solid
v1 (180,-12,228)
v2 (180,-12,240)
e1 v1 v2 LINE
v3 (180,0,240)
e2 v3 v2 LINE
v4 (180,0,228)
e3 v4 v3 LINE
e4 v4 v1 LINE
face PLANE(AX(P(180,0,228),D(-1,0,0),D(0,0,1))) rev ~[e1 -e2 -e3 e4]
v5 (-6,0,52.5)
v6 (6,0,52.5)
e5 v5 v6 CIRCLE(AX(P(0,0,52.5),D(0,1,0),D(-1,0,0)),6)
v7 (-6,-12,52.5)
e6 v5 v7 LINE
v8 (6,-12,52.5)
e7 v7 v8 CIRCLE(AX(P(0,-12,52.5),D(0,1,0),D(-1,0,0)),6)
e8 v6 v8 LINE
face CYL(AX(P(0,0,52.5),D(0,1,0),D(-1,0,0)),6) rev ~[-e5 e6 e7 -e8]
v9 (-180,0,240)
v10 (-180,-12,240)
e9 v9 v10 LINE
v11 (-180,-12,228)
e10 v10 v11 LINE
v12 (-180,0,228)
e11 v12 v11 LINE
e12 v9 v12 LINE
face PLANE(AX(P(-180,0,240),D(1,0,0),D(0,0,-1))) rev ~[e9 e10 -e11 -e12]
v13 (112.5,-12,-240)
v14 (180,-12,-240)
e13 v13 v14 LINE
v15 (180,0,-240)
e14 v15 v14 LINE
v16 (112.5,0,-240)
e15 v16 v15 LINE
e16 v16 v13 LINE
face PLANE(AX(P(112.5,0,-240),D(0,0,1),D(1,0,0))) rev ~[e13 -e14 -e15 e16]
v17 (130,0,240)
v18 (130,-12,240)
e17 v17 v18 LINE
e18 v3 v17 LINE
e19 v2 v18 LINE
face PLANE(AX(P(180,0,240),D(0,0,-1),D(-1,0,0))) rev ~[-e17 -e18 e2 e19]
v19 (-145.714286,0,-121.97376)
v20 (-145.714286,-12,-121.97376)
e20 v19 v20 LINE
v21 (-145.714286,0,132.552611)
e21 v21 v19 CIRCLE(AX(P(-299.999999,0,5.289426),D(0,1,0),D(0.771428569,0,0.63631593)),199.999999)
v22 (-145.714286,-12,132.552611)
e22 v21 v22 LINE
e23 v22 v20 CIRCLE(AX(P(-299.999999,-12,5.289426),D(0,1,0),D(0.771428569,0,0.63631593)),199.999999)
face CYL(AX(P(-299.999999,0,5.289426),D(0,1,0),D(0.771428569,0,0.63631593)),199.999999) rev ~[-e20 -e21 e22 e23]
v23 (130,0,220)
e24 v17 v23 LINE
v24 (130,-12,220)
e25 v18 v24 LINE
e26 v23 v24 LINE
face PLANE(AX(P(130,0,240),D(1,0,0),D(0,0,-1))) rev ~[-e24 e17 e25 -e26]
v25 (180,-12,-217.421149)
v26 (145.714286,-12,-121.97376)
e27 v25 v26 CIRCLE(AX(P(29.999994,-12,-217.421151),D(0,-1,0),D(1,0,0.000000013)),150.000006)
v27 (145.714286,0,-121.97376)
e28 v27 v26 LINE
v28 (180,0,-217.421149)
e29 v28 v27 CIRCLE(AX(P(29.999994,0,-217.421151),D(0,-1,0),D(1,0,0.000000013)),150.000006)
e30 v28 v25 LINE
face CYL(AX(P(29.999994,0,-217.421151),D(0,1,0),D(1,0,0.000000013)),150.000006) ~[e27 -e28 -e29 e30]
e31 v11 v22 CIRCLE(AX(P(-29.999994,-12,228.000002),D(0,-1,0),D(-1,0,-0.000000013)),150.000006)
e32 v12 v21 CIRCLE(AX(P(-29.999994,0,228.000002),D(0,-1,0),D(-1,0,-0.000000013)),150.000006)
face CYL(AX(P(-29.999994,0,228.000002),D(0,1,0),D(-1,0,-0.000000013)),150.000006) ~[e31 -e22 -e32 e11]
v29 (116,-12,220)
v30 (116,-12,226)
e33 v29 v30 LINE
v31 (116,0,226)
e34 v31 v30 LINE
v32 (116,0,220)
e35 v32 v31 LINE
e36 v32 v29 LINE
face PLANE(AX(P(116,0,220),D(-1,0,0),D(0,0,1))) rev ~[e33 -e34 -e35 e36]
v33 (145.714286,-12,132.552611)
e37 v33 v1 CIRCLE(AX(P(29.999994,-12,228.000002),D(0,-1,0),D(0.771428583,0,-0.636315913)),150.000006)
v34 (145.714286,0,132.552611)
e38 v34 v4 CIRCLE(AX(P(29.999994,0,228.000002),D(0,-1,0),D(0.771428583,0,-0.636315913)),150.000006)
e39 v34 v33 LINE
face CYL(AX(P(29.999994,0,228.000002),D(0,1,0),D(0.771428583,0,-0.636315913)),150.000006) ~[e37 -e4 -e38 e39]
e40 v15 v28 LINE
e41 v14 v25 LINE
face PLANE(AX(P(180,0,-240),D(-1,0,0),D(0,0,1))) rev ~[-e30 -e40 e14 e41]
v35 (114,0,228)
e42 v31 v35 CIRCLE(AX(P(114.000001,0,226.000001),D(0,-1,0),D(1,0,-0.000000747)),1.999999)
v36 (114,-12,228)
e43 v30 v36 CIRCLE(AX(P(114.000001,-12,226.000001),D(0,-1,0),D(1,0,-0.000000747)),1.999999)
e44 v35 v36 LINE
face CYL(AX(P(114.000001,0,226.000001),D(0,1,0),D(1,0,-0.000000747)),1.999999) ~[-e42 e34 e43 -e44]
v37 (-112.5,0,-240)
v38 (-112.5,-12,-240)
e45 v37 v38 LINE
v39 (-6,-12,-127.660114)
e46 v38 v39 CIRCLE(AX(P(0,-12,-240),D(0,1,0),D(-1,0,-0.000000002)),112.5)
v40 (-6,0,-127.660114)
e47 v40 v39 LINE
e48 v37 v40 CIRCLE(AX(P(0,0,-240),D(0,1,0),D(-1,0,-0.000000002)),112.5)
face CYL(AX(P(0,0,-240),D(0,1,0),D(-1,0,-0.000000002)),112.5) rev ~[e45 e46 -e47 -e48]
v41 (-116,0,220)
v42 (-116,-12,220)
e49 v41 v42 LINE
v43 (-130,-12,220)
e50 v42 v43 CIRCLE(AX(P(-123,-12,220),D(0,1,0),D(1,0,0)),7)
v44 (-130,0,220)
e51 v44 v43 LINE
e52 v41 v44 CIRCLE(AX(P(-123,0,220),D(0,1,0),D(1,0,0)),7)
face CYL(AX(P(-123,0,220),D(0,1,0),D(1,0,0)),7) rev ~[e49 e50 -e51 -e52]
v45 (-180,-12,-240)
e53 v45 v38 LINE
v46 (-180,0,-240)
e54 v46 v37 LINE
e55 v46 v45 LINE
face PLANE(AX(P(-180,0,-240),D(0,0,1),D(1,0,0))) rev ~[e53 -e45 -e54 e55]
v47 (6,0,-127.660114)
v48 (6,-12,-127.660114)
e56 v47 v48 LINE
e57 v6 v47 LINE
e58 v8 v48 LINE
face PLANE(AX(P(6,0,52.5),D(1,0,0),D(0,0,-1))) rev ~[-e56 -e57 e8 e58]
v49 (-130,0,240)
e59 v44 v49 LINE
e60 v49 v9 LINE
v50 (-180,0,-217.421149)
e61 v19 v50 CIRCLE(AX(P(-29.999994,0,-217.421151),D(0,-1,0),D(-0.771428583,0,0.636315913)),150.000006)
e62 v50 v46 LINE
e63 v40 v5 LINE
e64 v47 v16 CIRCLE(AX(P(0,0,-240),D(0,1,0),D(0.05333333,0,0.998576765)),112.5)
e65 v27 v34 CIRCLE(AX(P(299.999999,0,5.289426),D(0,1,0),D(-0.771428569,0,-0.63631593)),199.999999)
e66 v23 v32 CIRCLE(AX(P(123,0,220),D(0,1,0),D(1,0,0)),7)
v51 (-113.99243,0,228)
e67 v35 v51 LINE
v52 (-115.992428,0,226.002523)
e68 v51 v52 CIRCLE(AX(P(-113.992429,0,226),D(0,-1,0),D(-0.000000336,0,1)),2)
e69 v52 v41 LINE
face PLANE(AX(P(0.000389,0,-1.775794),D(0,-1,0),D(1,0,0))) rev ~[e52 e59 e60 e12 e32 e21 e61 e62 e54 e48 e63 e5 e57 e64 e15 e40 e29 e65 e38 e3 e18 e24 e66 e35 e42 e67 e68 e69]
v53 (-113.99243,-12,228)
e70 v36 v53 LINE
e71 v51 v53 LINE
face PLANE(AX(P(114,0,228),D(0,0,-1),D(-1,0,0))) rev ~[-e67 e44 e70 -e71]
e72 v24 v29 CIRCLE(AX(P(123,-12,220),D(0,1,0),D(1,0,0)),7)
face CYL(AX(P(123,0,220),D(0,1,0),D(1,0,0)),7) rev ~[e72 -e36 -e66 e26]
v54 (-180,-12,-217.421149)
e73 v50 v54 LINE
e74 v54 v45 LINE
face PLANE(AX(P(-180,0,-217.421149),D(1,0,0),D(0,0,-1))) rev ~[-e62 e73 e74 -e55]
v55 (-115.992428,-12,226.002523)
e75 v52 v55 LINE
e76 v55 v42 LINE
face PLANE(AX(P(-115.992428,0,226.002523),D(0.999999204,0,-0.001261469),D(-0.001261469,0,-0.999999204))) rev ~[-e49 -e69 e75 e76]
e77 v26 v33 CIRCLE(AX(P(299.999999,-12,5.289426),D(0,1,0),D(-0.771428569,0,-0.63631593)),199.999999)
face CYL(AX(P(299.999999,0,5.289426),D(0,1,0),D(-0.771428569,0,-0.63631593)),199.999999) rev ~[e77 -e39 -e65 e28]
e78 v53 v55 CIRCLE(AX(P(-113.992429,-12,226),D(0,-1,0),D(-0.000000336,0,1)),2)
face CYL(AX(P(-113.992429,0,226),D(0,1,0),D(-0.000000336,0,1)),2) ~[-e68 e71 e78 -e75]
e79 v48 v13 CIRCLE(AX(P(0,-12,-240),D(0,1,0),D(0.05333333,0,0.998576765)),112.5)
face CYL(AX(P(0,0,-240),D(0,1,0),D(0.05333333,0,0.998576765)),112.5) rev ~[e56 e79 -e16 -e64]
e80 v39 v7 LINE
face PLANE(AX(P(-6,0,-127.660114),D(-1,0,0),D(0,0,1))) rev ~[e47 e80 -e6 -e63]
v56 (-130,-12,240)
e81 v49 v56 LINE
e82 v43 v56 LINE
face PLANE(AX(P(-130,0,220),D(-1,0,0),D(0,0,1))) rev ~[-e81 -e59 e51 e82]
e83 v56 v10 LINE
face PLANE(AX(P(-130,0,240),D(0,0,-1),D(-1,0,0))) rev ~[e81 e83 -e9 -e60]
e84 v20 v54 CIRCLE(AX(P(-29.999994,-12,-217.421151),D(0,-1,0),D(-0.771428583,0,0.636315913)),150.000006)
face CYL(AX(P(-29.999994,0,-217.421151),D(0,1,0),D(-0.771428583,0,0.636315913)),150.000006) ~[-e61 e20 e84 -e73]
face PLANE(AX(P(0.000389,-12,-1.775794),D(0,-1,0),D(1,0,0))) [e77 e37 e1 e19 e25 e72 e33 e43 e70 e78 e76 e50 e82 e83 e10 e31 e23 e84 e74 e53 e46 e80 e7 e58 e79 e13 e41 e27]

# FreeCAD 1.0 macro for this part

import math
import FreeCAD as App
import Part
import Sketcher

doc = App.newDocument("Part")
body = doc.addObject("PartDesign::Body", "Body")

sketch1 = body.newObject("Sketcher::SketchObject", "Sketch")
sketch1.AttachmentSupport = (doc.getObject("XZ_Plane"), [""])
sketch1.MapMode = "FlatFace"
sketch1.addGeometry(Part.LineSegment(App.Vector(-180, -217.421149, 0), App.Vector(-180, -240, 0)), False)
sketch1.addGeometry(Part.LineSegment(App.Vector(-180, -240, 0), App.Vector(-112.5, -240, 0)), False)
sketch1.addGeometry(Part.ArcOfCircle(Part.Circle(App.Vector(0, -240, 0), App.Vector(0, 0, 1), 112.5), math.radians(93.057225), math.radians(180)), False)
sketch1.addGeometry(Part.LineSegment(App.Vector(-6, -127.660114, 0), App.Vector(-6, 52.5, 0)), False)
sketch1.addGeometry(Part.ArcOfCircle(Part.Circle(App.Vector(0, 52.5, 0), App.Vector(0, 0, 1), 6), math.radians(0), math.radians(180)), False)
sketch1.addGeometry(Part.LineSegment(App.Vector(6, 52.5, 0), App.Vector(6, -127.660114, 0)), False)
sketch1.addGeometry(Part.ArcOfCircle(Part.Circle(App.Vector(0, -240, 0), App.Vector(0, 0, 1), 112.5), math.radians(0), math.radians(86.942775)), False)
sketch1.addGeometry(Part.LineSegment(App.Vector(112.5, -240, 0), App.Vector(180, -240, 0)), False)
sketch1.addGeometry(Part.LineSegment(App.Vector(180, -240, 0), App.Vector(180, -217.421149, 0)), False)
sketch1.addGeometry(Part.ArcOfCircle(Part.Circle(App.Vector(29.999994, -217.421151, 0), App.Vector(0, 0, 1), 150.000006), math.radians(0.000001), math.radians(39.517652)), False)
sketch1.addGeometry(Part.ArcOfCircle(Part.Circle(App.Vector(299.999999, 5.289426, 0), App.Vector(0, 0, 1), 199.999999), math.radians(140.482347), math.radians(219.517653)), False)
sketch1.addGeometry(Part.ArcOfCircle(Part.Circle(App.Vector(29.999994, 228.000002, 0), App.Vector(0, 0, 1), 150.000006), math.radians(-39.517652), math.radians(-0.000001)), False)
sketch1.addGeometry(Part.LineSegment(App.Vector(180, 228, 0), App.Vector(180, 240, 0)), False)
sketch1.addGeometry(Part.LineSegment(App.Vector(180, 240, 0), App.Vector(130, 240, 0)), False)
sketch1.addGeometry(Part.LineSegment(App.Vector(130, 240, 0), App.Vector(130, 220, 0)), False)
sketch1.addGeometry(Part.ArcOfCircle(Part.Circle(App.Vector(123, 220, 0), App.Vector(0, 0, 1), 7), math.radians(180), math.radians(360)), False)
sketch1.addGeometry(Part.LineSegment(App.Vector(116, 220, 0), App.Vector(116, 226, 0)), False)
sketch1.addGeometry(Part.ArcOfCircle(Part.Circle(App.Vector(114.000001, 226.000001, 0), App.Vector(0, 0, 1), 1.999999), math.radians(-0.000043), math.radians(90.000043)), False)
sketch1.addGeometry(Part.LineSegment(App.Vector(114, 228, 0), App.Vector(-113.99243, 228, 0)), False)
sketch1.addGeometry(Part.ArcOfCircle(Part.Circle(App.Vector(-113.992429, 226, 0), App.Vector(0, 0, 1), 2), math.radians(90.000019), math.radians(179.927714)), False)
sketch1.addGeometry(Part.LineSegment(App.Vector(-115.992428, 226.002523, 0), App.Vector(-116, 220, 0)), False)
sketch1.addGeometry(Part.ArcOfCircle(Part.Circle(App.Vector(-123, 220, 0), App.Vector(0, 0, 1), 7), math.radians(180), math.radians(360)), False)
sketch1.addGeometry(Part.LineSegment(App.Vector(-130, 220, 0), App.Vector(-130, 240, 0)), False)
sketch1.addGeometry(Part.LineSegment(App.Vector(-130, 240, 0), App.Vector(-180, 240, 0)), False)
sketch1.addGeometry(Part.LineSegment(App.Vector(-180, 240, 0), App.Vector(-180, 228, 0)), False)
sketch1.addGeometry(Part.ArcOfCircle(Part.Circle(App.Vector(-29.999994, 228.000002, 0), App.Vector(0, 0, 1), 150.000006), math.radians(-179.999999), math.radians(-140.482348)), False)
sketch1.addGeometry(Part.ArcOfCircle(Part.Circle(App.Vector(-299.999999, 5.289426, 0), App.Vector(0, 0, 1), 199.999999), math.radians(-39.517653), math.radians(39.517653)), False)
sketch1.addGeometry(Part.ArcOfCircle(Part.Circle(App.Vector(-29.999994, -217.421151, 0), App.Vector(0, 0, 1), 150.000006), math.radians(140.482348), math.radians(179.999999)), False)
sketch1.addConstraint(Sketcher.Constraint("Coincident", 0, 2, 1, 1))
sketch1.addConstraint(Sketcher.Constraint("Coincident", 1, 2, 2, 2))
sketch1.addConstraint(Sketcher.Constraint("Coincident", 2, 1, 3, 1))
sketch1.addConstraint(Sketcher.Constraint("Tangent", 3, 2, 4, 2))
sketch1.addConstraint(Sketcher.Constraint("Tangent", 4, 1, 5, 1))
sketch1.addConstraint(Sketcher.Constraint("Coincident", 5, 2, 6, 2))
sketch1.addConstraint(Sketcher.Constraint("Coincident", 6, 1, 7, 1))
sketch1.addConstraint(Sketcher.Constraint("Coincident", 7, 2, 8, 1))
sketch1.addConstraint(Sketcher.Constraint("Tangent", 8, 2, 9, 1))
sketch1.addConstraint(Sketcher.Constraint("Tangent", 9, 2, 10, 2))
sketch1.addConstraint(Sketcher.Constraint("Tangent", 10, 1, 11, 1))
sketch1.addConstraint(Sketcher.Constraint("Tangent", 11, 2, 12, 1))
sketch1.addConstraint(Sketcher.Constraint("Coincident", 12, 2, 13, 1))
sketch1.addConstraint(Sketcher.Constraint("Coincident", 13, 2, 14, 1))
sketch1.addConstraint(Sketcher.Constraint("Tangent", 14, 2, 15, 2))
sketch1.addConstraint(Sketcher.Constraint("Tangent", 15, 1, 16, 1))
sketch1.addConstraint(Sketcher.Constraint("Tangent", 16, 2, 17, 1))
sketch1.addConstraint(Sketcher.Constraint("Tangent", 17, 2, 18, 1))
sketch1.addConstraint(Sketcher.Constraint("Tangent", 18, 2, 19, 1))
sketch1.addConstraint(Sketcher.Constraint("Tangent", 19, 2, 20, 1))
sketch1.addConstraint(Sketcher.Constraint("Coincident", 20, 2, 21, 2))
sketch1.addConstraint(Sketcher.Constraint("Tangent", 21, 1, 22, 1))
sketch1.addConstraint(Sketcher.Constraint("Coincident", 22, 2, 23, 1))
sketch1.addConstraint(Sketcher.Constraint("Coincident", 23, 2, 24, 1))
sketch1.addConstraint(Sketcher.Constraint("Tangent", 24, 2, 25, 1))
sketch1.addConstraint(Sketcher.Constraint("Tangent", 25, 2, 26, 2))
sketch1.addConstraint(Sketcher.Constraint("Tangent", 26, 1, 27, 1))
sketch1.addConstraint(Sketcher.Constraint("Tangent", 27, 2, 0, 1))
sketch1.addConstraint(Sketcher.Constraint("Vertical", 0))
sketch1.addConstraint(Sketcher.Constraint("Horizontal", 1))
sketch1.addConstraint(Sketcher.Constraint("Vertical", 3))
sketch1.addConstraint(Sketcher.Constraint("Vertical", 5))
sketch1.addConstraint(Sketcher.Constraint("Horizontal", 7))
sketch1.addConstraint(Sketcher.Constraint("Vertical", 8))
sketch1.addConstraint(Sketcher.Constraint("Vertical", 12))
sketch1.addConstraint(Sketcher.Constraint("Horizontal", 13))
sketch1.addConstraint(Sketcher.Constraint("Vertical", 14))
sketch1.addConstraint(Sketcher.Constraint("Vertical", 16))
sketch1.addConstraint(Sketcher.Constraint("Horizontal", 18))
sketch1.addConstraint(Sketcher.Constraint("Vertical", 22))
sketch1.addConstraint(Sketcher.Constraint("Horizontal", 23))
sketch1.addConstraint(Sketcher.Constraint("Vertical", 24))
sketch1.addConstraint(Sketcher.Constraint("Coincident", 6, 3, 2, 3))
sketch1.addConstraint(Sketcher.Constraint("Equal", 2, 6))
sketch1.addConstraint(Sketcher.Constraint("Equal", 9, 11))
sketch1.addConstraint(Sketcher.Constraint("Equal", 17, 19))
sketch1.addConstraint(Sketcher.Constraint("Equal", 15, 21))
sketch1.addConstraint(Sketcher.Constraint("Equal", 11, 25))
sketch1.addConstraint(Sketcher.Constraint("Equal", 10, 26))
sketch1.addConstraint(Sketcher.Constraint("Equal", 25, 27))
sketch1.addConstraint(Sketcher.Constraint("Symmetric", 0, 2, 12, 2, -1, 1))
sketch1.addConstraint(Sketcher.Constraint("Symmetric", 7, 2, 23, 2, -1, 1))
sketch1.addConstraint(Sketcher.Constraint("Symmetric", 15, 3, 21, 3, -2))
sketch1.addConstraint(Sketcher.Constraint("Symmetric", 11, 3, 25, 3, -2))
sketch1.addConstraint(Sketcher.Constraint("Symmetric", 2, 1, 5, 2, -2))
sketch1.addConstraint(Sketcher.Constraint("Horizontal", 10, 3, 26, 3))
sketch1.addConstraint(Sketcher.Constraint("Horizontal", 6, 3, 0, 2))
sketch1.addConstraint(Sketcher.Constraint("Horizontal", 1, 2, 6, 1))
sketch1.addConstraint(Sketcher.Constraint("Horizontal", 11, 2, 17, 2))
sketch1.addConstraint(Sketcher.Constraint("Horizontal", 15, 1, 20, 2))
sketch1.addConstraint(Sketcher.Constraint("Radius", 4, 6.0))
sketch1.addConstraint(Sketcher.Constraint("Radius", 10, 199.999999))
sketch1.addConstraint(Sketcher.Constraint("Radius", 15, 7.0))
sketch1.addConstraint(Sketcher.Constraint("Radius", 17, 1.999999))
sketch1.addConstraint(Sketcher.Constraint("Radius", 2, 112.5))
sketch1.addConstraint(Sketcher.Constraint("DistanceX", 13, 2, 13, 1, 50.0))
sketch1.addConstraint(Sketcher.Constraint("DistanceY", 12, 1, 12, 2, 12.0))
sketch1.addConstraint(Sketcher.Constraint("DistanceY", 14, 2, 14, 1, 20.0))
sketch1.addConstraint(Sketcher.Constraint("DistanceX", 1, 1, 1, 2, 67.5))
sketch1.addConstraint(Sketcher.Constraint("DistanceY", 2, 3, -1, 1, 240.0))
sketch1.addConstraint(Sketcher.Constraint("DistanceX", -1, 1, 10, 3, 299.999999))
sketch1.addConstraint(Sketcher.Constraint("DistanceY", -1, 1, 4, 3, 52.5))
sketch1.addConstraint(Sketcher.Constraint("Radius", 9, 150.000006))
sketch1.addConstraint(Sketcher.Constraint("DistanceX", 18, 2, 18, 1, 227.99243))
pad1 = body.newObject("PartDesign::Pad", "Pad")
pad1.Profile = sketch1
pad1.Length = 12

doc.recompute()
